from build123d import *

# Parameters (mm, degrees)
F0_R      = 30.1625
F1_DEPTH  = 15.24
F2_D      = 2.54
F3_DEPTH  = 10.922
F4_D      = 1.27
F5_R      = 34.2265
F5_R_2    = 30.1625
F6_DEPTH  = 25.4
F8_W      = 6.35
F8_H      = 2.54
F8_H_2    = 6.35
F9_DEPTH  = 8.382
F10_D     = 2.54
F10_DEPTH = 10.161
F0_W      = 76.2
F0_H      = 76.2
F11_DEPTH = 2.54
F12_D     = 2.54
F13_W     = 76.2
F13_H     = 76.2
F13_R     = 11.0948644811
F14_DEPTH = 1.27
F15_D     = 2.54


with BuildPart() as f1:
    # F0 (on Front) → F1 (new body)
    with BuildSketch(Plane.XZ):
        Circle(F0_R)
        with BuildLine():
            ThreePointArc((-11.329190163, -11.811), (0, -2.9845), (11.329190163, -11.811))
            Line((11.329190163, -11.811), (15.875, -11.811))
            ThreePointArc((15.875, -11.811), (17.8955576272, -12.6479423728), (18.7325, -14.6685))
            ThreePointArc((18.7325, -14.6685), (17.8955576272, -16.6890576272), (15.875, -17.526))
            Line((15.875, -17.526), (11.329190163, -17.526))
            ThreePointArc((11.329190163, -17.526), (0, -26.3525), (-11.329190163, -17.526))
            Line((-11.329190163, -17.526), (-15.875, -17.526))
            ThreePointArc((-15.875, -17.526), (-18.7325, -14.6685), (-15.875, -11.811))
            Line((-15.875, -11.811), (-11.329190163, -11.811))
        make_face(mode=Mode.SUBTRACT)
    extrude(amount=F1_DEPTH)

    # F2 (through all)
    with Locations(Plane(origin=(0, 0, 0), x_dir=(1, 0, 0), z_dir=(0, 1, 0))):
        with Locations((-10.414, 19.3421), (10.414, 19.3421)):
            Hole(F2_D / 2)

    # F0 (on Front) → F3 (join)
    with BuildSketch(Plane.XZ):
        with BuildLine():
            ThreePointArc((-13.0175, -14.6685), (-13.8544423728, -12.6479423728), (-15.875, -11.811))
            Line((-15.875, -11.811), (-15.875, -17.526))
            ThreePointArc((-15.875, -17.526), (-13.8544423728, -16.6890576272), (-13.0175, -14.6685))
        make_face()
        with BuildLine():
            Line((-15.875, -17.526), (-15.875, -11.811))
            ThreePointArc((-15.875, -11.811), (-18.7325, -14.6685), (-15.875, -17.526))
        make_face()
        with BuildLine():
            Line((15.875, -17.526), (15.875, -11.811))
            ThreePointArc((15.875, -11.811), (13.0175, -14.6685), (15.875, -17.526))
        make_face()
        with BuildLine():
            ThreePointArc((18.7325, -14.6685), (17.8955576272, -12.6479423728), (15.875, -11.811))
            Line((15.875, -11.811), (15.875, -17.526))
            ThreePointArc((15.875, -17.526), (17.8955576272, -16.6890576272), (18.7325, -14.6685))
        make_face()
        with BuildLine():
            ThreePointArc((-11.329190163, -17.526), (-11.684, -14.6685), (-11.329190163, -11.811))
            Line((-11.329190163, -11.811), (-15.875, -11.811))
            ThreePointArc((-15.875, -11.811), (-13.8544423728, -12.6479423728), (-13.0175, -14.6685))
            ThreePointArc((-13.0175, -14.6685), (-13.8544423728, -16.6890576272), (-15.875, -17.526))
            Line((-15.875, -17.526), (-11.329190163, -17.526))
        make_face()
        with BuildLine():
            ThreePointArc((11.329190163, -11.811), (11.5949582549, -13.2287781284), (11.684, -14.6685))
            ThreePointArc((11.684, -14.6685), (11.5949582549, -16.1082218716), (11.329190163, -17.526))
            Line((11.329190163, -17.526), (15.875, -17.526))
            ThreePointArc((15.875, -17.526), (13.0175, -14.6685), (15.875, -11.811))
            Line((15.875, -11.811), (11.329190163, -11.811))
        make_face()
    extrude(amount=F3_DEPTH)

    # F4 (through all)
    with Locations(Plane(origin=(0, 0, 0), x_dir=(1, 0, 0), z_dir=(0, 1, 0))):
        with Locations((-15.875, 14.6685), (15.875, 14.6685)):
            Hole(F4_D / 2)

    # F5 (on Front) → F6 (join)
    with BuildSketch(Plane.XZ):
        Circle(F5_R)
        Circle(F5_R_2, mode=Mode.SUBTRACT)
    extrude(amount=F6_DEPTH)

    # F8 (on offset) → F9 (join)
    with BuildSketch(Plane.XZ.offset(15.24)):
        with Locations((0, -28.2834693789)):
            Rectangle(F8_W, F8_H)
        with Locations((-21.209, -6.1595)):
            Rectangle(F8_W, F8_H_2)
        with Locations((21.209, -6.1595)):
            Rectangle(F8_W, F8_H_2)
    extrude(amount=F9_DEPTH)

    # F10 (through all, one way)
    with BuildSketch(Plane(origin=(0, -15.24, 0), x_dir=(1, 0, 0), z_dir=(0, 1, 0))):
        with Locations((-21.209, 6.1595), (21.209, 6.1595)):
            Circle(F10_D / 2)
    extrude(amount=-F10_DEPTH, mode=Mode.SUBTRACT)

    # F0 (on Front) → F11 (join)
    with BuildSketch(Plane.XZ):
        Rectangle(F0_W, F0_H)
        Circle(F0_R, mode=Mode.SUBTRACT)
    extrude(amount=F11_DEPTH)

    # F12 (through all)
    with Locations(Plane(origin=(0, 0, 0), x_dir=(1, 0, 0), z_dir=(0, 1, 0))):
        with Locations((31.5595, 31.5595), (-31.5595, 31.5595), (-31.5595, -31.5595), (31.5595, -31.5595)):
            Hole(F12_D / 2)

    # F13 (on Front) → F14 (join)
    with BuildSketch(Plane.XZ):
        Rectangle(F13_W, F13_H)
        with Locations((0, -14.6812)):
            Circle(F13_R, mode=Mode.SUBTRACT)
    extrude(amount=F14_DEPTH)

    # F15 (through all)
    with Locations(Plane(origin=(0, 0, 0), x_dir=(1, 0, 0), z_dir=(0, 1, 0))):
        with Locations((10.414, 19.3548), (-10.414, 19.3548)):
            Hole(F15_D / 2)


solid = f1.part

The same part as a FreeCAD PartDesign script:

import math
import FreeCAD as App
import Part
import Sketcher
from FreeCAD import Vector
Q = App.Units.Quantity


def add_polygon(sketch, points):
    """Adds a closed chain of lines whose ends are joined by coincident constraints."""
    first, n = sketch.GeometryCount, len(points)
    for a, b in zip(points, points[1:] + points[:1]):
        sketch.addGeometry(Part.LineSegment(App.Vector(*a, 0), App.Vector(*b, 0)), False)
    for i in range(n):
        sketch.addConstraint(Sketcher.Constraint("Coincident", first + i, 2, first + (i + 1) % n, 1))

doc = App.newDocument("Part")
body = doc.addObject("PartDesign::Body", "Body")

sketch1 = doc.addObject("Sketcher::SketchObject", "Sketch")
body.addObject(sketch1)
sketch1.AttachmentSupport = (doc.XZ_Plane, [""])
sketch1.MapMode = "FlatFace"
sketch1.addGeometry([
    Part.Circle(Vector(0, 0, 0), Vector(0, 0, 1), 30.1625),
    Part.LineSegment(Vector(-15.875, -11.811, 0), Vector(-11.32919, -11.811, 0)),
    Part.ArcOfCircle(Part.Circle(Vector(0, -14.6685, 0), Vector(0, 0, 1), 11.684), math.radians(14.156141), math.radians(165.843859)),
    Part.LineSegment(Vector(11.32919, -11.811, 0), Vector(15.875, -11.811, 0)),
    Part.ArcOfCircle(Part.Circle(Vector(15.875, -14.6685, 0), Vector(0, 0, 1), 2.8575), math.radians(0), math.radians(90)),
    Part.ArcOfCircle(Part.Circle(Vector(15.875, -14.6685, 0), Vector(0, 0, 1), 2.8575), math.radians(-90), math.radians(0)),
    Part.LineSegment(Vector(15.875, -17.526, 0), Vector(11.32919, -17.526, 0)),
    Part.ArcOfCircle(Part.Circle(Vector(0, -14.6685, 0), Vector(0, 0, 1), 11.684), math.radians(-165.843859), math.radians(-14.156141)),
    Part.LineSegment(Vector(-11.32919, -17.526, 0), Vector(-15.875, -17.526, 0)),
    Part.ArcOfCircle(Part.Circle(Vector(-15.875, -14.6685, 0), Vector(0, 0, 1), 2.8575), math.radians(90), math.radians(270)),
], False)
sketch1.addConstraint([
    Sketcher.Constraint("Coincident", 1, 2, 2, 2),
    Sketcher.Constraint("Coincident", 2, 1, 3, 1),
    Sketcher.Constraint("Tangent", 3, 2, 4, 2),
    Sketcher.Constraint("Tangent", 4, 1, 5, 2),
    Sketcher.Constraint("Tangent", 5, 1, 6, 1),
    Sketcher.Constraint("Coincident", 6, 2, 7, 2),
    Sketcher.Constraint("Coincident", 7, 1, 8, 1),
    Sketcher.Constraint("Tangent", 8, 2, 9, 2),
    Sketcher.Constraint("Tangent", 9, 1, 1, 1),
    Sketcher.Constraint("Horizontal", 1),
    Sketcher.Constraint("Horizontal", 3),
    Sketcher.Constraint("Horizontal", 6),
    Sketcher.Constraint("Horizontal", 8),
    Sketcher.Constraint("Coincident", 0, 3, -1, 1),
    Sketcher.Constraint("Coincident", 7, 3, 2, 3),
    Sketcher.Constraint("Equal", 4, 5),
    Sketcher.Constraint("Equal", 2, 7),
    Sketcher.Constraint("Equal", 5, 9),
    Sketcher.Constraint("Symmetric", 4, 3, 9, 3, -2),
    Sketcher.Constraint("PointOnObject", 2, 3, -2),
    Sketcher.Constraint("Horizontal", 2, 3, 4, 3),
    Sketcher.Constraint("Horizontal", 9, 3, 4, 1),
    Sketcher.Constraint("Radius", 2, Q("0.46 in")),
    Sketcher.Constraint("Diameter", 0, Q("2.375 in")),
    Sketcher.Constraint("Radius", 4, Q("0.1125 in")),
    Sketcher.Constraint("DistanceY", 5, 1, -1, 1, Q("0.69 in")),
    Sketcher.Constraint("DistanceX", 9, 3, 4, 3, Q("1.25 in")),
])
pad1 = doc.addObject("PartDesign::Pad", "Pad")
body.addObject(pad1)
pad1.Profile = sketch1
pad1.Length = Q("0.6 in")

sketch2 = doc.addObject("Sketcher::SketchObject", "Sketch001")
body.addObject(sketch2)
sketch2.AttachmentSupport = (doc.XZ_Plane, [""])
sketch2.MapMode = "FlatFace"
sketch2.addGeometry([
    Part.Circle(Vector(-10.414, -19.3421, 0), Vector(0, 0, 1), 1.27),
    Part.Circle(Vector(10.414, -19.3421, 0), Vector(0, 0, 1), 1.27),
], False)
sketch2.addConstraint([
    Sketcher.Constraint("Equal", 0, 1),
    Sketcher.Constraint("Symmetric", 0, 3, 1, 3, -2),
    Sketcher.Constraint("Diameter", 0, Q("0.1 in")),
    Sketcher.Constraint("DistanceX", 0, 3, -1, 1, Q("0.41 in")),
    Sketcher.Constraint("DistanceY", 0, 3, -1, 1, Q("0.7615 in")),
])
doc.recompute()
hole = doc.addObject("PartDesign::Hole", "Hole")
body.addObject(hole)
hole.Profile = sketch2
hole.ThreadType = "None"
hole.Diameter = Q("0.1 in")
hole.DepthType = "ThroughAll"
hole.Reversed = True

sketch3 = doc.addObject("Sketcher::SketchObject", "Sketch002")
body.addObject(sketch3)
sketch3.AttachmentSupport = (doc.XZ_Plane, [""])
sketch3.MapMode = "FlatFace"
sketch3.addGeometry([
    Part.ArcOfCircle(Part.Circle(Vector(-15.875, -14.6685, 0), Vector(0, 0, 1), 2.8575), math.radians(90), math.radians(270)),
    Part.LineSegment(Vector(-15.875, -17.526, 0), Vector(-11.32919, -17.526, 0)),
    Part.ArcOfCircle(Part.Circle(Vector(0, -14.6685, 0), Vector(0, 0, 1), 11.684), math.radians(165.843859), math.radians(194.156141)),
    Part.LineSegment(Vector(-11.32919, -11.811, 0), Vector(-15.875, -11.811, 0)),
    Part.ArcOfCircle(Part.Circle(Vector(15.875, -14.6685, 0), Vector(0, 0, 1), 2.8575), math.radians(-90), math.radians(0)),
    Part.ArcOfCircle(Part.Circle(Vector(15.875, -14.6685, 0), Vector(0, 0, 1), 2.8575), math.radians(0), math.radians(90)),
    Part.LineSegment(Vector(15.875, -11.811, 0), Vector(11.32919, -11.811, 0)),
    Part.ArcOfCircle(Part.Circle(Vector(0, -14.6685, 0), Vector(0, 0, 1), 11.684), math.radians(0), math.radians(14.156141)),
    Part.ArcOfCircle(Part.Circle(Vector(0, -14.6685, 0), Vector(0, 0, 1), 11.684), math.radians(-14.156141), math.radians(0)),
    Part.LineSegment(Vector(11.32919, -17.526, 0), Vector(15.875, -17.526, 0)),
], False)
sketch3.addConstraint([
    Sketcher.Constraint("Tangent", 0, 2, 1, 1),
    Sketcher.Constraint("Coincident", 1, 2, 2, 2),
    Sketcher.Constraint("Coincident", 2, 1, 3, 1),
    Sketcher.Constraint("Tangent", 3, 2, 0, 1),
    Sketcher.Constraint("Tangent", 4, 2, 5, 1),
    Sketcher.Constraint("Tangent", 5, 2, 6, 1),
    Sketcher.Constraint("Coincident", 6, 2, 7, 2),
    Sketcher.Constraint("Tangent", 7, 1, 8, 2),
    Sketcher.Constraint("Coincident", 8, 1, 9, 1),
    Sketcher.Constraint("Tangent", 9, 2, 4, 1),
    Sketcher.Constraint("Horizontal", 1),
    Sketcher.Constraint("Horizontal", 3),
    Sketcher.Constraint("Horizontal", 6),
    Sketcher.Constraint("Horizontal", 9),
    Sketcher.Constraint("Coincident", 7, 3, 2, 3),
    Sketcher.Constraint("Equal", 0, 4),
    Sketcher.Constraint("Equal", 4, 5),
    Sketcher.Constraint("Equal", 2, 7),
    Sketcher.Constraint("Equal", 7, 8),
    Sketcher.Constraint("Symmetric", 0, 3, 4, 3, -2),
    Sketcher.Constraint("PointOnObject", 2, 3, -2),
    Sketcher.Constraint("Horizontal", 0, 3, 2, 3),
    Sketcher.Constraint("Horizontal", 8, 3, 4, 2),
    Sketcher.Constraint("Horizontal", 4, 2, 7, 1),
    Sketcher.Constraint("Radius", 2, Q("0.46 in")),
    Sketcher.Constraint("Radius", 0, Q("0.1125 in")),
    Sketcher.Constraint("DistanceY", 0, 2, -1, 1, Q("0.69 in")),
    Sketcher.Constraint("DistanceX", 0, 3, 4, 3, Q("1.25 in")),
])
pad2 = doc.addObject("PartDesign::Pad", "Pad001")
body.addObject(pad2)
pad2.Profile = sketch3
pad2.Length = Q("0.43 in")

sketch4 = doc.addObject("Sketcher::SketchObject", "Sketch003")
body.addObject(sketch4)
sketch4.AttachmentSupport = (doc.XZ_Plane, [""])
sketch4.MapMode = "FlatFace"
sketch4.addGeometry([
    Part.Circle(Vector(-15.875, -14.6685, 0), Vector(0, 0, 1), 0.635),
    Part.Circle(Vector(15.875, -14.6685, 0), Vector(0, 0, 1), 0.635),
], False)
sketch4.addConstraint([
    Sketcher.Constraint("Equal", 0, 1),
    Sketcher.Constraint("Symmetric", 0, 3, 1, 3, -2),
    Sketcher.Constraint("Diameter", 0, Q("0.05 in")),
    Sketcher.Constraint("DistanceX", 0, 3, 1, 3, Q("1.25 in")),
    Sketcher.Constraint("DistanceY", 0, 3, -1, 1, Q("0.5775 in")),
])
doc.recompute()
hole2 = doc.addObject("PartDesign::Hole", "Hole001")
body.addObject(hole2)
hole2.Profile = sketch4
hole2.ThreadType = "None"
hole2.Diameter = Q("0.05 in")
hole2.DepthType = "ThroughAll"
hole2.Reversed = True

sketch5 = doc.addObject("Sketcher::SketchObject", "Sketch004")
body.addObject(sketch5)
sketch5.AttachmentSupport = (doc.XZ_Plane, [""])
sketch5.MapMode = "FlatFace"
sketch5.addGeometry([
    Part.Circle(Vector(0, 0, 0), Vector(0, 0, 1), 34.2265),
    Part.Circle(Vector(0, 0, 0), Vector(0, 0, 1), 30.1625),
], False)
sketch5.addConstraint([
    Sketcher.Constraint("Coincident", 0, 3, -1, 1),
    Sketcher.Constraint("Coincident", 1, 3, -1, 1),
    Sketcher.Constraint("Diameter", 0, Q("2.695 in")),
    Sketcher.Constraint("Diameter", 1, Q("2.375 in")),
])
pad3 = doc.addObject("PartDesign::Pad", "Pad002")
body.addObject(pad3)
pad3.Profile = sketch5
pad3.Length = Q("1 in")

sketch6 = doc.addObject("Sketcher::SketchObject", "Sketch005")
body.addObject(sketch6)
sketch6.AttachmentSupport = (doc.XZ_Plane, [""])
sketch6.MapMode = "FlatFace"
sketch6.AttachmentOffset = App.Placement(Vector(0, 0, 0.6 * 25.4), App.Rotation())
add_polygon(sketch6, [(-3.175, -27.013469), (-3.175, -29.553469), (3.175, -29.553469), (3.175, -27.013469)])
add_polygon(sketch6, [(-24.384, -2.9845), (-24.384, -9.3345), (-18.034, -9.3345), (-18.034, -2.9845)])
add_polygon(sketch6, [(18.034, -2.9845), (18.034, -9.3345), (24.384, -9.3345), (24.384, -2.9845)])
sketch6.addConstraint([
    Sketcher.Constraint("Vertical", 0),
    Sketcher.Constraint("Horizontal", 1),
    Sketcher.Constraint("Vertical", 2),
    Sketcher.Constraint("Horizontal", 3),
    Sketcher.Constraint("Vertical", 4),
    Sketcher.Constraint("Horizontal", 5),
    Sketcher.Constraint("Vertical", 6),
    Sketcher.Constraint("Horizontal", 7),
    Sketcher.Constraint("Vertical", 8),
    Sketcher.Constraint("Horizontal", 9),
    Sketcher.Constraint("Vertical", 10),
    Sketcher.Constraint("Horizontal", 11),
    Sketcher.Constraint("Symmetric", 5, 2, 8, 2, -2),
    Sketcher.Constraint("Symmetric", 7, 2, 10, 2, -2),
    Sketcher.Constraint("Equal", 3, 5),
    Sketcher.Constraint("Equal", 11, 4),
    Sketcher.Constraint("DistanceY", 0, 2, 0, 1, Q("0.1 in")),
    Sketcher.Constraint("DistanceX", 1, 1, 1, 2, Q("0.25 in")),
    Sketcher.Constraint("DistanceX", 4, 2, -1, 1, Q("0.96 in")),
    Sketcher.Constraint("DistanceX", 0, 2, -1, 1, Q("0.125 in")),
    Sketcher.Constraint("DistanceY", 4, 2, -1, 1, Q("0.3675 in")),
    Sketcher.Constraint("DistanceY", 0, 2, -1, 1, 29.553469),
])
pad4 = doc.addObject("PartDesign::Pad", "Pad003")
body.addObject(pad4)
pad4.Profile = sketch6
pad4.Length = Q("0.33 in")

sketch7 = doc.addObject("Sketcher::SketchObject", "Sketch006")
body.addObject(sketch7)
sketch7.AttachmentSupport = (doc.XZ_Plane, [""])
sketch7.MapMode = "FlatFace"
sketch7.AttachmentOffset = App.Placement(Vector(0, 0, 0.6 * 25.4), App.Rotation())
sketch7.addGeometry([
    Part.Circle(Vector(21.209, -6.1595, 0), Vector(0, 0, 1), 1.27),
    Part.Circle(Vector(-21.209, -6.1595, 0), Vector(0, 0, 1), 1.27),
], False)
sketch7.addConstraint([
    Sketcher.Constraint("Equal", 0, 1),
    Sketcher.Constraint("Symmetric", 0, 3, 1, 3, -2),
    Sketcher.Constraint("Diameter", 0, Q("0.1 in")),
    Sketcher.Constraint("DistanceX", 1, 3, 0, 3, Q("1.67 in")),
    Sketcher.Constraint("DistanceY", 0, 3, -1, 1, Q("0.2425 in")),
])
pocket1 = doc.addObject("PartDesign::Pocket", "Pocket")
body.addObject(pocket1)
pocket1.Profile = sketch7
pocket1.Type = "ThroughAll"
pocket1.Reversed = True

sketch8 = doc.addObject("Sketcher::SketchObject", "Sketch007")
body.addObject(sketch8)
sketch8.AttachmentSupport = (doc.XZ_Plane, [""])
sketch8.MapMode = "FlatFace"
add_polygon(sketch8, [(-38.1, 38.1), (-38.1, -38.1), (38.1, -38.1), (38.1, 38.1)])
sketch8.addGeometry(Part.Circle(Vector(0, 0, 0), Vector(0, 0, 1), 30.1625), False)
sketch8.addConstraint([
    Sketcher.Constraint("Vertical", 0),
    Sketcher.Constraint("Horizontal", 1),
    Sketcher.Constraint("Vertical", 2),
    Sketcher.Constraint("Horizontal", 3),
    Sketcher.Constraint("Coincident", 4, 3, -1, 1),
    Sketcher.Constraint("Symmetric", 0, 2, 2, 2, -1, 1),
    Sketcher.Constraint("Equal", 3, 0),
    Sketcher.Constraint("DistanceX", 1, 1, 1, 2, Q("3 in")),
    Sketcher.Constraint("Diameter", 4, Q("2.375 in")),
])
pad5 = doc.addObject("PartDesign::Pad", "Pad004")
body.addObject(pad5)
pad5.Profile = sketch8
pad5.Length = Q("0.1 in")

sketch9 = doc.addObject("Sketcher::SketchObject", "Sketch008")
body.addObject(sketch9)
sketch9.AttachmentSupport = (doc.XZ_Plane, [""])
sketch9.MapMode = "FlatFace"
sketch9.addGeometry([
    Part.Circle(Vector(31.5595, -31.5595, 0), Vector(0, 0, 1), 1.27),
    Part.Circle(Vector(-31.5595, -31.5595, 0), Vector(0, 0, 1), 1.27),
    Part.Circle(Vector(-31.5595, 31.5595, 0), Vector(0, 0, 1), 1.27),
    Part.Circle(Vector(31.5595, 31.5595, 0), Vector(0, 0, 1), 1.27),
], False)
sketch9.addConstraint([
    Sketcher.Constraint("Equal", 0, 1),
    Sketcher.Constraint("Equal", 1, 2),
    Sketcher.Constraint("Equal", 2, 3),
    Sketcher.Constraint("Symmetric", 0, 3, 2, 3, -1, 1),
    Sketcher.Constraint("Symmetric", 1, 3, 3, 3, -1, 1),
    Sketcher.Constraint("Symmetric", 0, 3, 1, 3, -2),
    Sketcher.Constraint("Diameter", 0, Q("0.1 in")),
    Sketcher.Constraint("DistanceX", 1, 3, 0, 3, Q("2.485 in")),
    Sketcher.Constraint("DistanceY", 1, 3, 2, 3, Q("2.485 in")),
])
doc.recompute()
hole3 = doc.addObject("PartDesign::Hole", "Hole002")
body.addObject(hole3)
hole3.Profile = sketch9
hole3.ThreadType = "None"
hole3.Diameter = Q("0.1 in")
hole3.DepthType = "ThroughAll"
hole3.Reversed = True

sketch10 = doc.addObject("Sketcher::SketchObject", "Sketch009")
body.addObject(sketch10)
sketch10.AttachmentSupport = (doc.XZ_Plane, [""])
sketch10.MapMode = "FlatFace"
add_polygon(sketch10, [(-38.1, 38.1), (-38.1, -38.1), (38.1, -38.1), (38.1, 38.1)])
sketch10.addGeometry(Part.Circle(Vector(0, -14.6812, 0), Vector(0, 0, 1), 11.094864), False)
sketch10.addConstraint([
    Sketcher.Constraint("Vertical", 0),
    Sketcher.Constraint("Horizontal", 1),
    Sketcher.Constraint("Vertical", 2),
    Sketcher.Constraint("Horizontal", 3),
    Sketcher.Constraint("Symmetric", 0, 2, 2, 2, -1, 1),
    Sketcher.Constraint("PointOnObject", 4, 3, -2),
    Sketcher.Constraint("Equal", 3, 0),
    Sketcher.Constraint("DistanceX", 1, 1, 1, 2, Q("3 in")),
    Sketcher.Constraint("Diameter", 4, 22.189729),
    Sketcher.Constraint("DistanceY", 4, 3, -1, 1, Q("0.578 in")),
])
pad6 = doc.addObject("PartDesign::Pad", "Pad005")
body.addObject(pad6)
pad6.Profile = sketch10
pad6.Length = Q("0.05 in")

sketch11 = doc.addObject("Sketcher::SketchObject", "Sketch010")
body.addObject(sketch11)
sketch11.AttachmentSupport = (doc.XZ_Plane, [""])
sketch11.MapMode = "FlatFace"
sketch11.addGeometry([
    Part.Circle(Vector(10.414, -19.3548, 0), Vector(0, 0, 1), 1.27),
    Part.Circle(Vector(-10.414, -19.3548, 0), Vector(0, 0, 1), 1.27),
], False)
sketch11.addConstraint([
    Sketcher.Constraint("Equal", 0, 1),
    Sketcher.Constraint("Symmetric", 0, 3, 1, 3, -2),
    Sketcher.Constraint("Diameter", 0, Q("0.1 in")),
    Sketcher.Constraint("DistanceX", -1, 1, 0, 3, Q("0.41 in")),
    Sketcher.Constraint("DistanceY", 0, 3, -1, 1, Q("0.762 in")),
])
doc.recompute()
hole4 = doc.addObject("PartDesign::Hole", "Hole003")
body.addObject(hole4)
hole4.Profile = sketch11
hole4.ThreadType = "None"
hole4.Diameter = Q("0.1 in")
hole4.DepthType = "ThroughAll"
hole4.Reversed = True

doc.recompute()
